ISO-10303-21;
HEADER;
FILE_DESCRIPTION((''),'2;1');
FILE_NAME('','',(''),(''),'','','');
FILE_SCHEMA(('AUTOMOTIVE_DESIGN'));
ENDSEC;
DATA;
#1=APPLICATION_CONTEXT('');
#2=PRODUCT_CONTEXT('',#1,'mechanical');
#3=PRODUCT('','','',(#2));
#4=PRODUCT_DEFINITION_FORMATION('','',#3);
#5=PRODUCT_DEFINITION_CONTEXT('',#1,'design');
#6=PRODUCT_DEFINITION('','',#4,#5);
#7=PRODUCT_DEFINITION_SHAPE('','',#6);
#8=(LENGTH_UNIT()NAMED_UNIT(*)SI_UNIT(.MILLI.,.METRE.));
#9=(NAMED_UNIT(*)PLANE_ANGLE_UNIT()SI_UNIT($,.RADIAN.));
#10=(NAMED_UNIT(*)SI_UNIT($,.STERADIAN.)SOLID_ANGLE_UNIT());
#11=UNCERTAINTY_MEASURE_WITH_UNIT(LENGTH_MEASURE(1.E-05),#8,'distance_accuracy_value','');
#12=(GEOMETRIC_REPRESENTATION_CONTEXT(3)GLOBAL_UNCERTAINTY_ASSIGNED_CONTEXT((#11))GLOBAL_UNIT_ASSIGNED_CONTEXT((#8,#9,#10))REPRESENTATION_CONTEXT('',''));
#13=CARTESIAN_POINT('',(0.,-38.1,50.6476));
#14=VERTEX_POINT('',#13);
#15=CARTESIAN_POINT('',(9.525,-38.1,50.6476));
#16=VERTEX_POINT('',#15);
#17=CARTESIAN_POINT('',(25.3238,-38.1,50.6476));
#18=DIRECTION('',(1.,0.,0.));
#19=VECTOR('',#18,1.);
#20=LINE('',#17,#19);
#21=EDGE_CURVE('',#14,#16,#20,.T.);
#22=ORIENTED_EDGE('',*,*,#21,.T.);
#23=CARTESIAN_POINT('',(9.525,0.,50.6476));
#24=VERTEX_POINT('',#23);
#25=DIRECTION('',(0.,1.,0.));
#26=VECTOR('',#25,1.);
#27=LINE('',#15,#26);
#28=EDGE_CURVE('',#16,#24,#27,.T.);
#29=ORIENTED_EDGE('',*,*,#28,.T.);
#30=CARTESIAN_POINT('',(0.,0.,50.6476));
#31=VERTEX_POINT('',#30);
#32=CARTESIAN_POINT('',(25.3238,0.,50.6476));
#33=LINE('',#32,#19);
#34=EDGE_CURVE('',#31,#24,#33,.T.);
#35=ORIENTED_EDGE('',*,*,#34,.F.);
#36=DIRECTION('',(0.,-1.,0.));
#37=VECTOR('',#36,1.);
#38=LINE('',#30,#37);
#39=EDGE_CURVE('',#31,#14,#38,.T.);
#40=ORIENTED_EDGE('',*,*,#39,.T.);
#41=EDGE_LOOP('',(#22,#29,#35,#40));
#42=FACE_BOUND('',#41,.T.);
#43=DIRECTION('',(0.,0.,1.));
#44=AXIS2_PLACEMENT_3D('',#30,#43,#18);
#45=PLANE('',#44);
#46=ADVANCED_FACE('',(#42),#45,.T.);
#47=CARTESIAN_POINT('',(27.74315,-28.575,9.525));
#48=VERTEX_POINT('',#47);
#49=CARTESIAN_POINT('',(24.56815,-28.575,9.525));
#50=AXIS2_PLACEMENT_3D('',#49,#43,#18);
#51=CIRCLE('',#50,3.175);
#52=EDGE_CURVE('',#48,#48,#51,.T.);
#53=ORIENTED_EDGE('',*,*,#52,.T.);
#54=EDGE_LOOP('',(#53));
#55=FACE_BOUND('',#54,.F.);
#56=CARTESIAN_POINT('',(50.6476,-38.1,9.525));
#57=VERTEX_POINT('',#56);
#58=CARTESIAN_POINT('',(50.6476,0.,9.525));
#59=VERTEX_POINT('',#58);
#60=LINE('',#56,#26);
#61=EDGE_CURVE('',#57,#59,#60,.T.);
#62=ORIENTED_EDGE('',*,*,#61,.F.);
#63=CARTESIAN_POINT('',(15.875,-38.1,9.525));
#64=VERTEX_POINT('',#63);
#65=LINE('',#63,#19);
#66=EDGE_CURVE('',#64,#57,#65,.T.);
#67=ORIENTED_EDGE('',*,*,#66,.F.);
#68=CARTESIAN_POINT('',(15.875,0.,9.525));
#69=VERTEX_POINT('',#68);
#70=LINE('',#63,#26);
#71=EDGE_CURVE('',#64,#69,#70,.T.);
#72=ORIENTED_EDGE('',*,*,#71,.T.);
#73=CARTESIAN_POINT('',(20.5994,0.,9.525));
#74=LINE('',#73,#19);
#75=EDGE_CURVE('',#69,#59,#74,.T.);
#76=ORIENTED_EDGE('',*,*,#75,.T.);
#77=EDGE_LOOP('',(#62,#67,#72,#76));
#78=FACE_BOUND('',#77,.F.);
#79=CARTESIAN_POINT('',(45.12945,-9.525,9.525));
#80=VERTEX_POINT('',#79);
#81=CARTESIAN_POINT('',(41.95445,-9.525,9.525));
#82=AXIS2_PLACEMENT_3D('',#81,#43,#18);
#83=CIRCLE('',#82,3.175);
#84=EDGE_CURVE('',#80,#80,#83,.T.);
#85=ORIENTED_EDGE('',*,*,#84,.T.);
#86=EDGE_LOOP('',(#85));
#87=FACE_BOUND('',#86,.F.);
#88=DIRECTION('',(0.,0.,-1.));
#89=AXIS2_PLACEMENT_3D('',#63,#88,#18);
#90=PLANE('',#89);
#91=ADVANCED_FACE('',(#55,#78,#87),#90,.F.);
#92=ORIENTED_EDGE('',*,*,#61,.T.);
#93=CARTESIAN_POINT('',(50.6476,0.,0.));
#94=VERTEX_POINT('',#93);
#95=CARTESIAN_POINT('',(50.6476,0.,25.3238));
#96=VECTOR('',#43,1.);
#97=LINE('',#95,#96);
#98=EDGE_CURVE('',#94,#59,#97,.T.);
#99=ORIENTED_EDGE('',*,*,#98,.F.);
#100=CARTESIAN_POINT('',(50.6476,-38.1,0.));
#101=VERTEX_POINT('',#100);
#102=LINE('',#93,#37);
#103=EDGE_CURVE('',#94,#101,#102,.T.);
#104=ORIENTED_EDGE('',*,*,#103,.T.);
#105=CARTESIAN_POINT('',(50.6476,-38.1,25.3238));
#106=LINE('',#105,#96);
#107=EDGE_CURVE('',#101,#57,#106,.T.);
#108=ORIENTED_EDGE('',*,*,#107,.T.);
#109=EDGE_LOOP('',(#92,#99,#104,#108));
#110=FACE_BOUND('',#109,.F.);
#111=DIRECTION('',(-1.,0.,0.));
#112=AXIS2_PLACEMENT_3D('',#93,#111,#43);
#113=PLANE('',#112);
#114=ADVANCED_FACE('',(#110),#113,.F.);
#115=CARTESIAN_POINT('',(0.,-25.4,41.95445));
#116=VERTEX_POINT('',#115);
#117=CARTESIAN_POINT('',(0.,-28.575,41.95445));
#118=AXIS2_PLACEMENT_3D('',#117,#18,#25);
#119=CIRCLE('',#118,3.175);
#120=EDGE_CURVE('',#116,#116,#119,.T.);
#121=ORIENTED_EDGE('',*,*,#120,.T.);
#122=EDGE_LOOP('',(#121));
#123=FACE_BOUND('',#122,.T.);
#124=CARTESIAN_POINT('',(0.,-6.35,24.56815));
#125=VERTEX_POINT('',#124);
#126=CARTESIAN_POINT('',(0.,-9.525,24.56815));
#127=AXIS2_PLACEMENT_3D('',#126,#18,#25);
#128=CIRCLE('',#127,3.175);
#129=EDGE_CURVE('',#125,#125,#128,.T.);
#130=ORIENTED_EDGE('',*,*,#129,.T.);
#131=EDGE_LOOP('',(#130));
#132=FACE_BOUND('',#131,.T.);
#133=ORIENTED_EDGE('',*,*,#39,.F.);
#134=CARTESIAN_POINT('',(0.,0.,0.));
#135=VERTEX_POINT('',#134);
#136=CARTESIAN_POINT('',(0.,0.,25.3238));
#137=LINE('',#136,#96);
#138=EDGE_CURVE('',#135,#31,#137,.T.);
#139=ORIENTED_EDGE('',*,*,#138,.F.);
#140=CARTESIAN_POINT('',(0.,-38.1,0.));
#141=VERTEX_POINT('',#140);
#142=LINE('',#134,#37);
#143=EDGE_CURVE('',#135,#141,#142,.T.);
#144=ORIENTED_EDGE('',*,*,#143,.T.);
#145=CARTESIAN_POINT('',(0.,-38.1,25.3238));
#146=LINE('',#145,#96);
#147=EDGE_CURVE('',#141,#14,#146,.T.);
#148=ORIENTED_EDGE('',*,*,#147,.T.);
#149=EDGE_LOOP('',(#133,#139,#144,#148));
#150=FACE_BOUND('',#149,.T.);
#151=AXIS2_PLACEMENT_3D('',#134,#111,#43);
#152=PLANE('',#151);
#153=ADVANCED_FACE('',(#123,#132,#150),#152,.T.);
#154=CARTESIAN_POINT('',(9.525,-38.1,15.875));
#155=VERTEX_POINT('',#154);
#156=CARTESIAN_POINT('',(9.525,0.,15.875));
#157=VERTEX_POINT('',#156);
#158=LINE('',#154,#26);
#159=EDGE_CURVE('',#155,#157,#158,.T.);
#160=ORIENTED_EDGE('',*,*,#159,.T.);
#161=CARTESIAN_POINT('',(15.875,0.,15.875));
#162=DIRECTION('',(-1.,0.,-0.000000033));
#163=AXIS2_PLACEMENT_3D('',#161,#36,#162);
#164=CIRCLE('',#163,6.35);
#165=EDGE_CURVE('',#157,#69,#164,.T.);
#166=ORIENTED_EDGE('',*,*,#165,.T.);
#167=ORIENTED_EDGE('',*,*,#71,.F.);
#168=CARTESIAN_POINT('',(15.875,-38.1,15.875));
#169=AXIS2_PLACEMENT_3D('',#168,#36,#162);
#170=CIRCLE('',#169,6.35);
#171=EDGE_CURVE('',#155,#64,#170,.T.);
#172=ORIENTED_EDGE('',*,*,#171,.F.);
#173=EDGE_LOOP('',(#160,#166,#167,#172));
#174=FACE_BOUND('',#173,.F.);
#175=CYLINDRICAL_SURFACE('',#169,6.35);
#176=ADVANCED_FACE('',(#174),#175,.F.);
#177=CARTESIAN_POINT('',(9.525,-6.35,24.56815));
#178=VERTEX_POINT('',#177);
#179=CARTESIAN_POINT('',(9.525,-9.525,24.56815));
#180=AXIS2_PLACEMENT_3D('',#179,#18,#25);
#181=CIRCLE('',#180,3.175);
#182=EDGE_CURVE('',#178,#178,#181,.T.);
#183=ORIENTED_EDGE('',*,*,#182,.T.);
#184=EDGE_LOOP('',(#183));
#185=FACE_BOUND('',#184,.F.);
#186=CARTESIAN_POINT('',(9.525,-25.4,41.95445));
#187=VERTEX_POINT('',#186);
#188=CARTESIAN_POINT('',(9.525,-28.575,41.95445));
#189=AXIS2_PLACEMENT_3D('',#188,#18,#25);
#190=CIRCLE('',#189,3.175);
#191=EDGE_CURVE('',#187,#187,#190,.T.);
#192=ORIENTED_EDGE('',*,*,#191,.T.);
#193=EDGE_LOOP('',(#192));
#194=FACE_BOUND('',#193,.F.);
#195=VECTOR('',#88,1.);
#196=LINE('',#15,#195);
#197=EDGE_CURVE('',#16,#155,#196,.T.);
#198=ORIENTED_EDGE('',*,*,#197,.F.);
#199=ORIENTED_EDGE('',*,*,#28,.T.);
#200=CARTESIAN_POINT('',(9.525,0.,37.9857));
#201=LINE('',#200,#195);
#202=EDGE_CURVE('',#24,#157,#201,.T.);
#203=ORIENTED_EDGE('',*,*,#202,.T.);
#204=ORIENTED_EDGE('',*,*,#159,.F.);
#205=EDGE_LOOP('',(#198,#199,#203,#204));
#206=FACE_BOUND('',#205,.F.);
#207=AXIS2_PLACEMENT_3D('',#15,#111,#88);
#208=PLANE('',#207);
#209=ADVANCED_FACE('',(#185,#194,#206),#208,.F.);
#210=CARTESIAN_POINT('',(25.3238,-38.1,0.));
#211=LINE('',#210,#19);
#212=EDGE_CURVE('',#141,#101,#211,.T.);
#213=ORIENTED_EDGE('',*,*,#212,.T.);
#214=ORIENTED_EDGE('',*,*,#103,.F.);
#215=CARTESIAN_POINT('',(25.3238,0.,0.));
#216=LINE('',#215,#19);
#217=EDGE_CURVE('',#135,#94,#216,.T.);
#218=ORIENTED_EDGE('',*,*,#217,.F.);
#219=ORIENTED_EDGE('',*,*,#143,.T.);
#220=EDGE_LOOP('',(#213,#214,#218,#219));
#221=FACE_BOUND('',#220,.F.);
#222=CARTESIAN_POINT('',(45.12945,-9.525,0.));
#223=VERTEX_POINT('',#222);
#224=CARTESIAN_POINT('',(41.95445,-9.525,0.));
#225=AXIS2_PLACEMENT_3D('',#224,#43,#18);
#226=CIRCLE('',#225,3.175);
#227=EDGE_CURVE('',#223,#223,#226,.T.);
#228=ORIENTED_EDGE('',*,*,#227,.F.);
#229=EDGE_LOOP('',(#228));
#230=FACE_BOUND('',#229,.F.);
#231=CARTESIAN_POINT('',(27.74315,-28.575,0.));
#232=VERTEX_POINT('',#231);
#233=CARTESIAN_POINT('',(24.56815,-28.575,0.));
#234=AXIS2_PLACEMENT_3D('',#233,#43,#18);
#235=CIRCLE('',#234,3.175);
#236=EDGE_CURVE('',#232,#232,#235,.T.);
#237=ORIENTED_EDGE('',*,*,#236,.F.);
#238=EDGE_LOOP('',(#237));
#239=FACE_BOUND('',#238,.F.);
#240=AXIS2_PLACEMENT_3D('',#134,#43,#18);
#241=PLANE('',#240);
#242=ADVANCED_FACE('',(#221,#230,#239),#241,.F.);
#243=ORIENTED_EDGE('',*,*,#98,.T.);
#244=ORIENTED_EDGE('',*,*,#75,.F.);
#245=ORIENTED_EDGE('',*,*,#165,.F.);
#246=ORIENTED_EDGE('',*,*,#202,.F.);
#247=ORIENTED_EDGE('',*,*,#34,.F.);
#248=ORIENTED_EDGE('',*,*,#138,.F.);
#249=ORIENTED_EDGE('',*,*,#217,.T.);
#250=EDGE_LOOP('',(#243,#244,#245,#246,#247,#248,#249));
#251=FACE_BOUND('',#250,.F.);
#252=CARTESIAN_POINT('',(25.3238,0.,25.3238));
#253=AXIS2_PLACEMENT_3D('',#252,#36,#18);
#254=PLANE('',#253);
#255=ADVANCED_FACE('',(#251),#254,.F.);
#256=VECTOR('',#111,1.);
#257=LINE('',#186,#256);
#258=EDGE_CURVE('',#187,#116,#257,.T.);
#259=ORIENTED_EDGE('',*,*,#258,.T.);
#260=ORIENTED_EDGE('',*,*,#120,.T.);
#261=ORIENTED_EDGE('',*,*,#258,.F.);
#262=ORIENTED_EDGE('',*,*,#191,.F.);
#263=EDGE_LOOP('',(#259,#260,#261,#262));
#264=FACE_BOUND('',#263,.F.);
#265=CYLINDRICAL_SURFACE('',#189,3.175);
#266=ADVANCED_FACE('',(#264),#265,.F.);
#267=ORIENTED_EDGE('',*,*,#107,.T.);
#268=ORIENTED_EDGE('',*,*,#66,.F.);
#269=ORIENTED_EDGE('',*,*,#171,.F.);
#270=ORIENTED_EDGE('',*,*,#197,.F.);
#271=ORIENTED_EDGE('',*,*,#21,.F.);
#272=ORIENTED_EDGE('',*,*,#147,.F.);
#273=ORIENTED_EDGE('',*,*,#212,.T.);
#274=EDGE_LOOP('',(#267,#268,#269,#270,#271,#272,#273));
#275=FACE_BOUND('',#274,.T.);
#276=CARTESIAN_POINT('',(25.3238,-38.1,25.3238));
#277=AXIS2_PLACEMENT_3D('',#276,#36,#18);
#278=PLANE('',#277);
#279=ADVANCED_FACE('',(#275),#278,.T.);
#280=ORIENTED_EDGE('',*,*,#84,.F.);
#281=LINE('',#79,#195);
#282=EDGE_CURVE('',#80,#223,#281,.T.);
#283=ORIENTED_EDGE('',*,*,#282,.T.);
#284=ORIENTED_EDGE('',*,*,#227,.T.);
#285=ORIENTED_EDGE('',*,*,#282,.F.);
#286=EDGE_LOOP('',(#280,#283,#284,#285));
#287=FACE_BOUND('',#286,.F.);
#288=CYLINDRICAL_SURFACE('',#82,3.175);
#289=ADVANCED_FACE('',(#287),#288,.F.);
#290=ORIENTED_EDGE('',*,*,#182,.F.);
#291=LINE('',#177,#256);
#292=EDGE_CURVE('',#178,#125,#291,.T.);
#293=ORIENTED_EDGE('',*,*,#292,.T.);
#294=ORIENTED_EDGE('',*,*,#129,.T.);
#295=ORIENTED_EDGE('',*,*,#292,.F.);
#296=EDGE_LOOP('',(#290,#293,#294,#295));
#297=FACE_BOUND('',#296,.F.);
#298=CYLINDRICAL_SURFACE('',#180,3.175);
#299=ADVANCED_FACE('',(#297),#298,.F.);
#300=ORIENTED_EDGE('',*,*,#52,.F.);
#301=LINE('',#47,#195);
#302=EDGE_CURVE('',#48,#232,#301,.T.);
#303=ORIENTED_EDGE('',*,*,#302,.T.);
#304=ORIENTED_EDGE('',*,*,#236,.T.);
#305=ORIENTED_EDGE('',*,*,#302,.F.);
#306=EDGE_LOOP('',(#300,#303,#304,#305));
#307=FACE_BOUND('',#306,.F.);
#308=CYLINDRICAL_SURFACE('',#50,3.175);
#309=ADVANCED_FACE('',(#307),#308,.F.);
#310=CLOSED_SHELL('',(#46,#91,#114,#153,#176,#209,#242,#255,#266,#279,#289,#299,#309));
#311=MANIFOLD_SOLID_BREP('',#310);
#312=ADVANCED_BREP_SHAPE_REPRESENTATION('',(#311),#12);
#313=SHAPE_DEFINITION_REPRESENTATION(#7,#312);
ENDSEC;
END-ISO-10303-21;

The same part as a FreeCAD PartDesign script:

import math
import FreeCAD as App
import Part
import Sketcher
from FreeCAD import Vector
Q = App.Units.Quantity

doc = App.newDocument("Part")
body = doc.addObject("PartDesign::Body", "Body")

# Sketch on XZ plane
sketch1 = body.newObject("Sketcher::SketchObject", "Sketch")
sketch1.AttachmentSupport = (doc.getObject("XZ_Plane"), [""])
sketch1.MapMode = "FlatFace"
sketch1.addGeometry([
    Part.LineSegment(Vector(0, 50.6476, 0), Vector(0, 0, 0)),
    Part.LineSegment(Vector(0, 0, 0), Vector(50.6476, 0, 0)),
    Part.LineSegment(Vector(50.6476, 0, 0), Vector(50.6476, 50.6476, 0)),
    Part.LineSegment(Vector(50.6476, 50.6476, 0), Vector(0, 50.6476, 0)),
], False)
sketch1.addConstraint([
    Sketcher.Constraint("Coincident", 0, 2, 1, 1),
    Sketcher.Constraint("Coincident", 1, 2, 2, 1),
    Sketcher.Constraint("Coincident", 2, 2, 3, 1),
    Sketcher.Constraint("Coincident", 3, 2, 0, 1),
    Sketcher.Constraint("Vertical", 0),
    Sketcher.Constraint("Horizontal", 1),
    Sketcher.Constraint("Vertical", 2),
    Sketcher.Constraint("Horizontal", 3),
    Sketcher.Constraint("Coincident", 0, 2, -1, 1),
    Sketcher.Constraint("Equal", 3, 0),
    Sketcher.Constraint("DistanceX", 1, 1, 1, 2, Q("1.994 in")),
])
pad1 = body.newObject("PartDesign::Pad", "Pad")
pad1.Profile = sketch1
pad1.Length = Q("1.5 in")

# Sketch on XZ plane
sketch2 = body.newObject("Sketcher::SketchObject", "Sketch001")
sketch2.AttachmentSupport = (doc.getObject("XZ_Plane"), [""])
sketch2.MapMode = "FlatFace"
sketch2.AttachmentOffset = App.Placement(Vector(0, 0, 1.5 * 25.4), App.Rotation())
sketch2.addGeometry([
    Part.LineSegment(Vector(50.6476, 9.525, 0), Vector(50.6476, 50.6476, 0)),  # 0
    Part.LineSegment(Vector(50.6476, 50.6476, 0), Vector(9.525, 50.6476, 0)),  # 1
    Part.LineSegment(Vector(9.525, 50.6476, 0), Vector(9.525, 15.875, 0)),  # 2
    Part.ArcOfCircle(Part.Circle(Vector(15.875, 15.875, 0), Vector(0, 0, 1), 6.35), math.radians(-179.999998), math.radians(-90.000002)),  # 3
    Part.LineSegment(Vector(15.875, 9.525, 0), Vector(50.6476, 9.525, 0)),  # 4
], False)
sketch2.addConstraint([
    Sketcher.Constraint("Coincident", 0, 2, 1, 1),
    Sketcher.Constraint("Coincident", 1, 2, 2, 1),
    Sketcher.Constraint("Tangent", 2, 2, 3, 1),
    Sketcher.Constraint("Tangent", 3, 2, 4, 1),
    Sketcher.Constraint("Coincident", 4, 2, 0, 1),
    Sketcher.Constraint("Vertical", 0),
    Sketcher.Constraint("Horizontal", 1),
    Sketcher.Constraint("Vertical", 2),
    Sketcher.Constraint("Horizontal", 4),
    Sketcher.Constraint("Equal", 1, 0),
    Sketcher.Constraint("Radius", 3, Q("0.25 in")),
    Sketcher.Constraint("DistanceX", 1, 2, 1, 1, Q("1.619 in")),
    Sketcher.Constraint("DistanceX", -1, 1, 3, 3, Q("0.625 in")),
    Sketcher.Constraint("DistanceY", -1, 1, 3, 3, Q("0.625 in")),
])
pocket1 = body.newObject("PartDesign::Pocket", "Pocket")
pocket1.Profile = sketch2
pocket1.Type = "ThroughAll"

# Sketch on XY plane
sketch3 = body.newObject("Sketcher::SketchObject", "Sketch002")
sketch3.AttachmentSupport = (doc.getObject("XY_Plane"), [""])
sketch3.MapMode = "FlatFace"
sketch3.AttachmentOffset = App.Placement(Vector(0, 0, 0.375 * 25.4), App.Rotation())
sketch3.addGeometry([
    Part.Circle(Vector(24.56815, -28.575, 0), Vector(0, 0, 1), 3.175),
    Part.Circle(Vector(41.95445, -9.525, 0), Vector(0, 0, 1), 3.175),
], False)
sketch3.addConstraint([
    Sketcher.Constraint("Equal", 0, 1),
    Sketcher.Constraint("Diameter", 0, Q("0.25 in")),
    Sketcher.Constraint("DistanceY", 0, 3, 1, 3, Q("0.75 in")),
    Sketcher.Constraint("DistanceY", 0, 3, -1, 1, Q("1.125 in")),
    Sketcher.Constraint("DistanceX", 0, 3, 1, 3, Q("0.6845 in")),
    Sketcher.Constraint("DistanceX", -1, 1, 0, 3, 24.56815),
])
pocket2 = body.newObject("PartDesign::Pocket", "Pocket001")
pocket2.Profile = sketch3
pocket2.Type = "ThroughAll"

# Sketch on YZ plane
sketch4 = body.newObject("Sketcher::SketchObject", "Sketch003")
sketch4.AttachmentSupport = (doc.getObject("YZ_Plane"), [""])
sketch4.MapMode = "FlatFace"
sketch4.AttachmentOffset = App.Placement(Vector(0, 0, 0.375 * 25.4), App.Rotation())
sketch4.addGeometry([
    Part.Circle(Vector(-28.575, 41.95445, 0), Vector(0, 0, 1), 3.175),
    Part.Circle(Vector(-9.525, 24.56815, 0), Vector(0, 0, 1), 3.175),
], False)
sketch4.addConstraint([
    Sketcher.Constraint("Equal", 0, 1),
    Sketcher.Constraint("Diameter", 0, Q("0.25 in")),
    Sketcher.Constraint("DistanceX", 0, 3, 1, 3, Q("0.75 in")),
    Sketcher.Constraint("DistanceX", 0, 3, -1, 1, Q("1.125 in")),
    Sketcher.Constraint("DistanceY", 1, 3, 0, 3, Q("0.6845 in")),
    Sketcher.Constraint("DistanceY", -1, 1, 0, 3, 41.95445),
])
pocket3 = body.newObject("PartDesign::Pocket", "Pocket002")
pocket3.Profile = sketch4
pocket3.Type = "ThroughAll"

doc.recompute()
